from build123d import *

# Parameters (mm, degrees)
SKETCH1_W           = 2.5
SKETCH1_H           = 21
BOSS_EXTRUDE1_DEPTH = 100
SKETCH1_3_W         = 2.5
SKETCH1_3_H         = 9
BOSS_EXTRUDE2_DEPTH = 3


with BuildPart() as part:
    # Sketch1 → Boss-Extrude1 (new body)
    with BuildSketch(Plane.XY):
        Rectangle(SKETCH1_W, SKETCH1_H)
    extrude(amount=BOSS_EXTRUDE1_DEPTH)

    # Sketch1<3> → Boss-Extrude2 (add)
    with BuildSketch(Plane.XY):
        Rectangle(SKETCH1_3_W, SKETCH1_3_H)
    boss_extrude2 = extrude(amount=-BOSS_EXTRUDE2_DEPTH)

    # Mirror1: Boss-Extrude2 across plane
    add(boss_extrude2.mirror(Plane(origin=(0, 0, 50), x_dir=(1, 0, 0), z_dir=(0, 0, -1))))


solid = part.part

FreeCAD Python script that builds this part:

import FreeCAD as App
import Part
import Sketcher

doc = App.newDocument("Part")
body = doc.addObject("PartDesign::Body", "Body")

# Sketch on XY plane
sketch1 = doc.addObject("Sketcher::SketchObject", "Sketch")
body.addObject(sketch1)
sketch1.AttachmentSupport = (doc.XY_Plane, [""])
sketch1.MapMode = "FlatFace"
sketch1.addGeometry([
    Part.LineSegment(App.Vector(-1.2, 10.5, 0), App.Vector(-1.2, -10.5, 0)),
    Part.LineSegment(App.Vector(-1.2, -10.5, 0), App.Vector(1.2, -10.5, 0)),
    Part.LineSegment(App.Vector(1.2, -10.5, 0), App.Vector(1.2, 10.5, 0)),
    Part.LineSegment(App.Vector(1.2, 10.5, 0), App.Vector(-1.2, 10.5, 0)),
], False)
sketch1.addConstraint([
    Sketcher.Constraint("Coincident", 0, 2, 1, 1),
    Sketcher.Constraint("Coincident", 1, 2, 2, 1),
    Sketcher.Constraint("Coincident", 2, 2, 3, 1),
    Sketcher.Constraint("Coincident", 3, 2, 0, 1),
    Sketcher.Constraint("Vertical", 0),
    Sketcher.Constraint("Horizontal", 1),
    Sketcher.Constraint("Vertical", 2),
    Sketcher.Constraint("Horizontal", 3),
    Sketcher.Constraint("Symmetric", 0, 2, 2, 2, -1, 1),
    Sketcher.Constraint("DistanceY", 0, 2, 0, 1, 21.0),
    Sketcher.Constraint("DistanceX", 1, 1, 1, 2, 2.5),
])
pad1 = doc.addObject("PartDesign::Pad", "Pad")
body.addObject(pad1)
pad1.Profile = sketch1
pad1.Length = 100

# Sketch on XY plane
sketch2 = doc.addObject("Sketcher::SketchObject", "Sketch001")
body.addObject(sketch2)
sketch2.AttachmentSupport = (doc.XY_Plane, [""])
sketch2.MapMode = "FlatFace"
sketch2.addGeometry([
    Part.LineSegment(App.Vector(-1.2, 4.5, 0), App.Vector(-1.2, -4.5, 0)),
    Part.LineSegment(App.Vector(-1.2, -4.5, 0), App.Vector(1.2, -4.5, 0)),
    Part.LineSegment(App.Vector(1.2, -4.5, 0), App.Vector(1.2, 4.5, 0)),
    Part.LineSegment(App.Vector(1.2, 4.5, 0), App.Vector(-1.2, 4.5, 0)),
], False)
sketch2.addConstraint([
    Sketcher.Constraint("Coincident", 0, 2, 1, 1),
    Sketcher.Constraint("Coincident", 1, 2, 2, 1),
    Sketcher.Constraint("Coincident", 2, 2, 3, 1),
    Sketcher.Constraint("Coincident", 3, 2, 0, 1),
    Sketcher.Constraint("Vertical", 0),
    Sketcher.Constraint("Horizontal", 1),
    Sketcher.Constraint("Vertical", 2),
    Sketcher.Constraint("Horizontal", 3),
    Sketcher.Constraint("Symmetric", 0, 2, 2, 2, -1, 1),
    Sketcher.Constraint("DistanceY", 0, 2, 0, 1, 9.0),
    Sketcher.Constraint("DistanceX", 1, 1, 1, 2, 2.5),
])
pad2 = doc.addObject("PartDesign::Pad", "Pad001")
body.addObject(pad2)
pad2.Profile = sketch2
pad2.Length = 3
pad2.Reversed = True
doc.recompute()

datumplane = doc.addObject("PartDesign::Plane", "DatumPlane")
body.addObject(datumplane)
datumplane.AttachmentSupport = (doc.XY_Plane, [""])
datumplane.MapMode = "FlatFace"
datumplane.AttachmentOffset = App.Placement(App.Vector(0, 0, 50), App.Rotation())
mirrored = doc.addObject("PartDesign::Mirrored", "Mirrored")
body.addObject(mirrored)
mirrored.Originals = [pad2]
mirrored.MirrorPlane = (datumplane, [""])
body.Tip = mirrored

doc.recompute()
